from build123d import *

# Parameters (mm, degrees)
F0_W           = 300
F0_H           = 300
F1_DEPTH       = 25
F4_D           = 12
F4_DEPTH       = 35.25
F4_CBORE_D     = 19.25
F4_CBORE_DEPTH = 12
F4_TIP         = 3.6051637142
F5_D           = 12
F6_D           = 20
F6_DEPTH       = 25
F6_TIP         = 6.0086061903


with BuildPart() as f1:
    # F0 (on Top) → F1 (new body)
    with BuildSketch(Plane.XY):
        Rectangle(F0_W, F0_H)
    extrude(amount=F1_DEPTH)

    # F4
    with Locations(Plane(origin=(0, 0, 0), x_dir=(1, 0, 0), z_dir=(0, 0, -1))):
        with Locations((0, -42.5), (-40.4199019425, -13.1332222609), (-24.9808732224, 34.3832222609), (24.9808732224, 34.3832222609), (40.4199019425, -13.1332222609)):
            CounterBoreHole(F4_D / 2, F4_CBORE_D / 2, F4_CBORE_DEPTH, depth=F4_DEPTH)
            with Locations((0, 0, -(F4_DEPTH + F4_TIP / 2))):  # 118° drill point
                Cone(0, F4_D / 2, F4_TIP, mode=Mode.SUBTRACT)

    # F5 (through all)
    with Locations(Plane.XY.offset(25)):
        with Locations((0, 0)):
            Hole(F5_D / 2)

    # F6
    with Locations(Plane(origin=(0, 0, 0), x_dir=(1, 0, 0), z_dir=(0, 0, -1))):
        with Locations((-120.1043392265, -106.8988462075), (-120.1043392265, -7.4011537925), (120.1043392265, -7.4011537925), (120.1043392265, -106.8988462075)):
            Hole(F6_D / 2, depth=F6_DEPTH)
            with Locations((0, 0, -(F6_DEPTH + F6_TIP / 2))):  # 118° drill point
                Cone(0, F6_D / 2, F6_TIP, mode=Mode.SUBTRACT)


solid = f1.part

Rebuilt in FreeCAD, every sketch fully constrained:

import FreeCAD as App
import Part
import Sketcher
Q = App.Units.Quantity

doc = App.newDocument("Part")
body = doc.addObject("PartDesign::Body", "Body")

sketch1 = doc.addObject("Sketcher::SketchObject", "Sketch")
body.addObject(sketch1)
sketch1.AttachmentSupport = (doc.XY_Plane, [""])
sketch1.MapMode = "FlatFace"
sketch1.addGeometry([
    Part.LineSegment(App.Vector(-150, 150, 0), App.Vector(-150, -150, 0)),
    Part.LineSegment(App.Vector(-150, -150, 0), App.Vector(150, -150, 0)),
    Part.LineSegment(App.Vector(150, -150, 0), App.Vector(150, 150, 0)),
    Part.LineSegment(App.Vector(150, 150, 0), App.Vector(-150, 150, 0)),
], False)
sketch1.addConstraint([
    Sketcher.Constraint("Coincident", 0, 2, 1, 1),
    Sketcher.Constraint("Coincident", 1, 2, 2, 1),
    Sketcher.Constraint("Coincident", 2, 2, 3, 1),
    Sketcher.Constraint("Coincident", 3, 2, 0, 1),
    Sketcher.Constraint("Vertical", 0),
    Sketcher.Constraint("Horizontal", 1),
    Sketcher.Constraint("Vertical", 2),
    Sketcher.Constraint("Horizontal", 3),
    Sketcher.Constraint("Symmetric", 0, 2, 2, 2, -1, 1),
    Sketcher.Constraint("Equal", 3, 0),
    Sketcher.Constraint("DistanceX", 1, 1, 1, 2, Q("300 mm")),
])
pad1 = doc.addObject("PartDesign::Pad", "Pad")
body.addObject(pad1)
pad1.Profile = sketch1
pad1.Length = 25

sketch2 = doc.addObject("Sketcher::SketchObject", "Sketch001")
body.addObject(sketch2)
sketch2.AttachmentSupport = (doc.XY_Plane, [""])
sketch2.MapMode = "FlatFace"
sketch2.addGeometry([
    Part.Circle(App.Vector(0, 42, 0), App.Vector(0, 0, 1), 6),
    Part.Circle(App.Vector(-40, 13, 0), App.Vector(0, 0, 1), 6),
    Part.Circle(App.Vector(-25, -34, 0), App.Vector(0, 0, 1), 6),
    Part.Circle(App.Vector(25, -34, 0), App.Vector(0, 0, 1), 6),
    Part.Circle(App.Vector(40, 13, 0), App.Vector(0, 0, 1), 6),
], False)
sketch2.addConstraint([
    Sketcher.Constraint("Equal", 0, 1),
    Sketcher.Constraint("Equal", 1, 2),
    Sketcher.Constraint("Equal", 2, 3),
    Sketcher.Constraint("Equal", 3, 4),
    Sketcher.Constraint("Symmetric", 2, 3, 3, 3, -2),
    Sketcher.Constraint("Symmetric", 1, 3, 4, 3, -2),
    Sketcher.Constraint("PointOnObject", 0, 3, -2),
    Sketcher.Constraint("Diameter", 0, Q("12 mm")),
    Sketcher.Constraint("DistanceY", -1, 1, 0, 3, Q("42.5 mm")),
    Sketcher.Constraint("DistanceX", 1, 3, -1, 1, Q("40.419902 mm")),
    Sketcher.Constraint("DistanceX", 1, 3, 2, 3, Q("15.439029 mm")),
    Sketcher.Constraint("DistanceY", -1, 1, 1, 3, Q("13.133222 mm")),
    Sketcher.Constraint("DistanceY", 2, 3, -1, 1, Q("34.383222 mm")),
])
doc.recompute()
hole = doc.addObject("PartDesign::Hole", "Hole")
body.addObject(hole)
hole.Profile = sketch2
hole.ThreadType = "None"
hole.Diameter = 12
hole.DepthType = "Dimension"
hole.Depth = 35.25
hole.DrillPoint = "Angled"
hole.DrillPointAngle = 118
hole.HoleCutType = "Counterbore"
hole.HoleCutDiameter = 19.25
hole.HoleCutDepth = 12
hole.Reversed = True

sketch3 = doc.addObject("Sketcher::SketchObject", "Sketch002")
body.addObject(sketch3)
sketch3.AttachmentSupport = (doc.XY_Plane, [""])
sketch3.MapMode = "FlatFace"
sketch3.AttachmentOffset = App.Placement(App.Vector(0, 0, 25), App.Rotation())
sketch3.addGeometry(Part.Circle(App.Vector(0, 0, 0), App.Vector(0, 0, 1), 6), False)
sketch3.addConstraint([
    Sketcher.Constraint("Coincident", 0, 3, -1, 1),
    Sketcher.Constraint("Diameter", 0, Q("12 mm")),
])
doc.recompute()
hole2 = doc.addObject("PartDesign::Hole", "Hole001")
body.addObject(hole2)
hole2.Profile = sketch3
hole2.ThreadType = "None"
hole2.Diameter = 12
hole2.DepthType = "ThroughAll"

sketch4 = doc.addObject("Sketcher::SketchObject", "Sketch003")
body.addObject(sketch4)
sketch4.AttachmentSupport = (doc.XY_Plane, [""])
sketch4.MapMode = "FlatFace"
sketch4.addGeometry([
    Part.Circle(App.Vector(-120, 107, 0), App.Vector(0, 0, 1), 10),
    Part.Circle(App.Vector(-120, 7, 0), App.Vector(0, 0, 1), 10),
    Part.Circle(App.Vector(120, 7, 0), App.Vector(0, 0, 1), 10),
    Part.Circle(App.Vector(120, 107, 0), App.Vector(0, 0, 1), 10),
], False)
sketch4.addConstraint([
    Sketcher.Constraint("Equal", 0, 1),
    Sketcher.Constraint("Equal", 1, 2),
    Sketcher.Constraint("Equal", 2, 3),
    Sketcher.Constraint("Symmetric", 1, 3, 2, 3, -2),
    Sketcher.Constraint("Symmetric", 0, 3, 3, 3, -2),
    Sketcher.Constraint("Vertical", 0, 3, 1, 3),
    Sketcher.Constraint("Diameter", 0, Q("20 mm")),
    Sketcher.Constraint("DistanceX", 0, 3, -1, 1, Q("120.104339 mm")),
    Sketcher.Constraint("DistanceY", -1, 1, 0, 3, Q("106.898846 mm")),
    Sketcher.Constraint("DistanceY", -1, 1, 1, 3, Q("7.401154 mm")),
])
doc.recompute()
hole3 = doc.addObject("PartDesign::Hole", "Hole002")
body.addObject(hole3)
hole3.Profile = sketch4
hole3.ThreadType = "None"
hole3.Diameter = 20
hole3.DepthType = "Dimension"
hole3.Depth = 25
hole3.DrillPoint = "Angled"
hole3.DrillPointAngle = 118
hole3.Reversed = True

doc.recompute()
